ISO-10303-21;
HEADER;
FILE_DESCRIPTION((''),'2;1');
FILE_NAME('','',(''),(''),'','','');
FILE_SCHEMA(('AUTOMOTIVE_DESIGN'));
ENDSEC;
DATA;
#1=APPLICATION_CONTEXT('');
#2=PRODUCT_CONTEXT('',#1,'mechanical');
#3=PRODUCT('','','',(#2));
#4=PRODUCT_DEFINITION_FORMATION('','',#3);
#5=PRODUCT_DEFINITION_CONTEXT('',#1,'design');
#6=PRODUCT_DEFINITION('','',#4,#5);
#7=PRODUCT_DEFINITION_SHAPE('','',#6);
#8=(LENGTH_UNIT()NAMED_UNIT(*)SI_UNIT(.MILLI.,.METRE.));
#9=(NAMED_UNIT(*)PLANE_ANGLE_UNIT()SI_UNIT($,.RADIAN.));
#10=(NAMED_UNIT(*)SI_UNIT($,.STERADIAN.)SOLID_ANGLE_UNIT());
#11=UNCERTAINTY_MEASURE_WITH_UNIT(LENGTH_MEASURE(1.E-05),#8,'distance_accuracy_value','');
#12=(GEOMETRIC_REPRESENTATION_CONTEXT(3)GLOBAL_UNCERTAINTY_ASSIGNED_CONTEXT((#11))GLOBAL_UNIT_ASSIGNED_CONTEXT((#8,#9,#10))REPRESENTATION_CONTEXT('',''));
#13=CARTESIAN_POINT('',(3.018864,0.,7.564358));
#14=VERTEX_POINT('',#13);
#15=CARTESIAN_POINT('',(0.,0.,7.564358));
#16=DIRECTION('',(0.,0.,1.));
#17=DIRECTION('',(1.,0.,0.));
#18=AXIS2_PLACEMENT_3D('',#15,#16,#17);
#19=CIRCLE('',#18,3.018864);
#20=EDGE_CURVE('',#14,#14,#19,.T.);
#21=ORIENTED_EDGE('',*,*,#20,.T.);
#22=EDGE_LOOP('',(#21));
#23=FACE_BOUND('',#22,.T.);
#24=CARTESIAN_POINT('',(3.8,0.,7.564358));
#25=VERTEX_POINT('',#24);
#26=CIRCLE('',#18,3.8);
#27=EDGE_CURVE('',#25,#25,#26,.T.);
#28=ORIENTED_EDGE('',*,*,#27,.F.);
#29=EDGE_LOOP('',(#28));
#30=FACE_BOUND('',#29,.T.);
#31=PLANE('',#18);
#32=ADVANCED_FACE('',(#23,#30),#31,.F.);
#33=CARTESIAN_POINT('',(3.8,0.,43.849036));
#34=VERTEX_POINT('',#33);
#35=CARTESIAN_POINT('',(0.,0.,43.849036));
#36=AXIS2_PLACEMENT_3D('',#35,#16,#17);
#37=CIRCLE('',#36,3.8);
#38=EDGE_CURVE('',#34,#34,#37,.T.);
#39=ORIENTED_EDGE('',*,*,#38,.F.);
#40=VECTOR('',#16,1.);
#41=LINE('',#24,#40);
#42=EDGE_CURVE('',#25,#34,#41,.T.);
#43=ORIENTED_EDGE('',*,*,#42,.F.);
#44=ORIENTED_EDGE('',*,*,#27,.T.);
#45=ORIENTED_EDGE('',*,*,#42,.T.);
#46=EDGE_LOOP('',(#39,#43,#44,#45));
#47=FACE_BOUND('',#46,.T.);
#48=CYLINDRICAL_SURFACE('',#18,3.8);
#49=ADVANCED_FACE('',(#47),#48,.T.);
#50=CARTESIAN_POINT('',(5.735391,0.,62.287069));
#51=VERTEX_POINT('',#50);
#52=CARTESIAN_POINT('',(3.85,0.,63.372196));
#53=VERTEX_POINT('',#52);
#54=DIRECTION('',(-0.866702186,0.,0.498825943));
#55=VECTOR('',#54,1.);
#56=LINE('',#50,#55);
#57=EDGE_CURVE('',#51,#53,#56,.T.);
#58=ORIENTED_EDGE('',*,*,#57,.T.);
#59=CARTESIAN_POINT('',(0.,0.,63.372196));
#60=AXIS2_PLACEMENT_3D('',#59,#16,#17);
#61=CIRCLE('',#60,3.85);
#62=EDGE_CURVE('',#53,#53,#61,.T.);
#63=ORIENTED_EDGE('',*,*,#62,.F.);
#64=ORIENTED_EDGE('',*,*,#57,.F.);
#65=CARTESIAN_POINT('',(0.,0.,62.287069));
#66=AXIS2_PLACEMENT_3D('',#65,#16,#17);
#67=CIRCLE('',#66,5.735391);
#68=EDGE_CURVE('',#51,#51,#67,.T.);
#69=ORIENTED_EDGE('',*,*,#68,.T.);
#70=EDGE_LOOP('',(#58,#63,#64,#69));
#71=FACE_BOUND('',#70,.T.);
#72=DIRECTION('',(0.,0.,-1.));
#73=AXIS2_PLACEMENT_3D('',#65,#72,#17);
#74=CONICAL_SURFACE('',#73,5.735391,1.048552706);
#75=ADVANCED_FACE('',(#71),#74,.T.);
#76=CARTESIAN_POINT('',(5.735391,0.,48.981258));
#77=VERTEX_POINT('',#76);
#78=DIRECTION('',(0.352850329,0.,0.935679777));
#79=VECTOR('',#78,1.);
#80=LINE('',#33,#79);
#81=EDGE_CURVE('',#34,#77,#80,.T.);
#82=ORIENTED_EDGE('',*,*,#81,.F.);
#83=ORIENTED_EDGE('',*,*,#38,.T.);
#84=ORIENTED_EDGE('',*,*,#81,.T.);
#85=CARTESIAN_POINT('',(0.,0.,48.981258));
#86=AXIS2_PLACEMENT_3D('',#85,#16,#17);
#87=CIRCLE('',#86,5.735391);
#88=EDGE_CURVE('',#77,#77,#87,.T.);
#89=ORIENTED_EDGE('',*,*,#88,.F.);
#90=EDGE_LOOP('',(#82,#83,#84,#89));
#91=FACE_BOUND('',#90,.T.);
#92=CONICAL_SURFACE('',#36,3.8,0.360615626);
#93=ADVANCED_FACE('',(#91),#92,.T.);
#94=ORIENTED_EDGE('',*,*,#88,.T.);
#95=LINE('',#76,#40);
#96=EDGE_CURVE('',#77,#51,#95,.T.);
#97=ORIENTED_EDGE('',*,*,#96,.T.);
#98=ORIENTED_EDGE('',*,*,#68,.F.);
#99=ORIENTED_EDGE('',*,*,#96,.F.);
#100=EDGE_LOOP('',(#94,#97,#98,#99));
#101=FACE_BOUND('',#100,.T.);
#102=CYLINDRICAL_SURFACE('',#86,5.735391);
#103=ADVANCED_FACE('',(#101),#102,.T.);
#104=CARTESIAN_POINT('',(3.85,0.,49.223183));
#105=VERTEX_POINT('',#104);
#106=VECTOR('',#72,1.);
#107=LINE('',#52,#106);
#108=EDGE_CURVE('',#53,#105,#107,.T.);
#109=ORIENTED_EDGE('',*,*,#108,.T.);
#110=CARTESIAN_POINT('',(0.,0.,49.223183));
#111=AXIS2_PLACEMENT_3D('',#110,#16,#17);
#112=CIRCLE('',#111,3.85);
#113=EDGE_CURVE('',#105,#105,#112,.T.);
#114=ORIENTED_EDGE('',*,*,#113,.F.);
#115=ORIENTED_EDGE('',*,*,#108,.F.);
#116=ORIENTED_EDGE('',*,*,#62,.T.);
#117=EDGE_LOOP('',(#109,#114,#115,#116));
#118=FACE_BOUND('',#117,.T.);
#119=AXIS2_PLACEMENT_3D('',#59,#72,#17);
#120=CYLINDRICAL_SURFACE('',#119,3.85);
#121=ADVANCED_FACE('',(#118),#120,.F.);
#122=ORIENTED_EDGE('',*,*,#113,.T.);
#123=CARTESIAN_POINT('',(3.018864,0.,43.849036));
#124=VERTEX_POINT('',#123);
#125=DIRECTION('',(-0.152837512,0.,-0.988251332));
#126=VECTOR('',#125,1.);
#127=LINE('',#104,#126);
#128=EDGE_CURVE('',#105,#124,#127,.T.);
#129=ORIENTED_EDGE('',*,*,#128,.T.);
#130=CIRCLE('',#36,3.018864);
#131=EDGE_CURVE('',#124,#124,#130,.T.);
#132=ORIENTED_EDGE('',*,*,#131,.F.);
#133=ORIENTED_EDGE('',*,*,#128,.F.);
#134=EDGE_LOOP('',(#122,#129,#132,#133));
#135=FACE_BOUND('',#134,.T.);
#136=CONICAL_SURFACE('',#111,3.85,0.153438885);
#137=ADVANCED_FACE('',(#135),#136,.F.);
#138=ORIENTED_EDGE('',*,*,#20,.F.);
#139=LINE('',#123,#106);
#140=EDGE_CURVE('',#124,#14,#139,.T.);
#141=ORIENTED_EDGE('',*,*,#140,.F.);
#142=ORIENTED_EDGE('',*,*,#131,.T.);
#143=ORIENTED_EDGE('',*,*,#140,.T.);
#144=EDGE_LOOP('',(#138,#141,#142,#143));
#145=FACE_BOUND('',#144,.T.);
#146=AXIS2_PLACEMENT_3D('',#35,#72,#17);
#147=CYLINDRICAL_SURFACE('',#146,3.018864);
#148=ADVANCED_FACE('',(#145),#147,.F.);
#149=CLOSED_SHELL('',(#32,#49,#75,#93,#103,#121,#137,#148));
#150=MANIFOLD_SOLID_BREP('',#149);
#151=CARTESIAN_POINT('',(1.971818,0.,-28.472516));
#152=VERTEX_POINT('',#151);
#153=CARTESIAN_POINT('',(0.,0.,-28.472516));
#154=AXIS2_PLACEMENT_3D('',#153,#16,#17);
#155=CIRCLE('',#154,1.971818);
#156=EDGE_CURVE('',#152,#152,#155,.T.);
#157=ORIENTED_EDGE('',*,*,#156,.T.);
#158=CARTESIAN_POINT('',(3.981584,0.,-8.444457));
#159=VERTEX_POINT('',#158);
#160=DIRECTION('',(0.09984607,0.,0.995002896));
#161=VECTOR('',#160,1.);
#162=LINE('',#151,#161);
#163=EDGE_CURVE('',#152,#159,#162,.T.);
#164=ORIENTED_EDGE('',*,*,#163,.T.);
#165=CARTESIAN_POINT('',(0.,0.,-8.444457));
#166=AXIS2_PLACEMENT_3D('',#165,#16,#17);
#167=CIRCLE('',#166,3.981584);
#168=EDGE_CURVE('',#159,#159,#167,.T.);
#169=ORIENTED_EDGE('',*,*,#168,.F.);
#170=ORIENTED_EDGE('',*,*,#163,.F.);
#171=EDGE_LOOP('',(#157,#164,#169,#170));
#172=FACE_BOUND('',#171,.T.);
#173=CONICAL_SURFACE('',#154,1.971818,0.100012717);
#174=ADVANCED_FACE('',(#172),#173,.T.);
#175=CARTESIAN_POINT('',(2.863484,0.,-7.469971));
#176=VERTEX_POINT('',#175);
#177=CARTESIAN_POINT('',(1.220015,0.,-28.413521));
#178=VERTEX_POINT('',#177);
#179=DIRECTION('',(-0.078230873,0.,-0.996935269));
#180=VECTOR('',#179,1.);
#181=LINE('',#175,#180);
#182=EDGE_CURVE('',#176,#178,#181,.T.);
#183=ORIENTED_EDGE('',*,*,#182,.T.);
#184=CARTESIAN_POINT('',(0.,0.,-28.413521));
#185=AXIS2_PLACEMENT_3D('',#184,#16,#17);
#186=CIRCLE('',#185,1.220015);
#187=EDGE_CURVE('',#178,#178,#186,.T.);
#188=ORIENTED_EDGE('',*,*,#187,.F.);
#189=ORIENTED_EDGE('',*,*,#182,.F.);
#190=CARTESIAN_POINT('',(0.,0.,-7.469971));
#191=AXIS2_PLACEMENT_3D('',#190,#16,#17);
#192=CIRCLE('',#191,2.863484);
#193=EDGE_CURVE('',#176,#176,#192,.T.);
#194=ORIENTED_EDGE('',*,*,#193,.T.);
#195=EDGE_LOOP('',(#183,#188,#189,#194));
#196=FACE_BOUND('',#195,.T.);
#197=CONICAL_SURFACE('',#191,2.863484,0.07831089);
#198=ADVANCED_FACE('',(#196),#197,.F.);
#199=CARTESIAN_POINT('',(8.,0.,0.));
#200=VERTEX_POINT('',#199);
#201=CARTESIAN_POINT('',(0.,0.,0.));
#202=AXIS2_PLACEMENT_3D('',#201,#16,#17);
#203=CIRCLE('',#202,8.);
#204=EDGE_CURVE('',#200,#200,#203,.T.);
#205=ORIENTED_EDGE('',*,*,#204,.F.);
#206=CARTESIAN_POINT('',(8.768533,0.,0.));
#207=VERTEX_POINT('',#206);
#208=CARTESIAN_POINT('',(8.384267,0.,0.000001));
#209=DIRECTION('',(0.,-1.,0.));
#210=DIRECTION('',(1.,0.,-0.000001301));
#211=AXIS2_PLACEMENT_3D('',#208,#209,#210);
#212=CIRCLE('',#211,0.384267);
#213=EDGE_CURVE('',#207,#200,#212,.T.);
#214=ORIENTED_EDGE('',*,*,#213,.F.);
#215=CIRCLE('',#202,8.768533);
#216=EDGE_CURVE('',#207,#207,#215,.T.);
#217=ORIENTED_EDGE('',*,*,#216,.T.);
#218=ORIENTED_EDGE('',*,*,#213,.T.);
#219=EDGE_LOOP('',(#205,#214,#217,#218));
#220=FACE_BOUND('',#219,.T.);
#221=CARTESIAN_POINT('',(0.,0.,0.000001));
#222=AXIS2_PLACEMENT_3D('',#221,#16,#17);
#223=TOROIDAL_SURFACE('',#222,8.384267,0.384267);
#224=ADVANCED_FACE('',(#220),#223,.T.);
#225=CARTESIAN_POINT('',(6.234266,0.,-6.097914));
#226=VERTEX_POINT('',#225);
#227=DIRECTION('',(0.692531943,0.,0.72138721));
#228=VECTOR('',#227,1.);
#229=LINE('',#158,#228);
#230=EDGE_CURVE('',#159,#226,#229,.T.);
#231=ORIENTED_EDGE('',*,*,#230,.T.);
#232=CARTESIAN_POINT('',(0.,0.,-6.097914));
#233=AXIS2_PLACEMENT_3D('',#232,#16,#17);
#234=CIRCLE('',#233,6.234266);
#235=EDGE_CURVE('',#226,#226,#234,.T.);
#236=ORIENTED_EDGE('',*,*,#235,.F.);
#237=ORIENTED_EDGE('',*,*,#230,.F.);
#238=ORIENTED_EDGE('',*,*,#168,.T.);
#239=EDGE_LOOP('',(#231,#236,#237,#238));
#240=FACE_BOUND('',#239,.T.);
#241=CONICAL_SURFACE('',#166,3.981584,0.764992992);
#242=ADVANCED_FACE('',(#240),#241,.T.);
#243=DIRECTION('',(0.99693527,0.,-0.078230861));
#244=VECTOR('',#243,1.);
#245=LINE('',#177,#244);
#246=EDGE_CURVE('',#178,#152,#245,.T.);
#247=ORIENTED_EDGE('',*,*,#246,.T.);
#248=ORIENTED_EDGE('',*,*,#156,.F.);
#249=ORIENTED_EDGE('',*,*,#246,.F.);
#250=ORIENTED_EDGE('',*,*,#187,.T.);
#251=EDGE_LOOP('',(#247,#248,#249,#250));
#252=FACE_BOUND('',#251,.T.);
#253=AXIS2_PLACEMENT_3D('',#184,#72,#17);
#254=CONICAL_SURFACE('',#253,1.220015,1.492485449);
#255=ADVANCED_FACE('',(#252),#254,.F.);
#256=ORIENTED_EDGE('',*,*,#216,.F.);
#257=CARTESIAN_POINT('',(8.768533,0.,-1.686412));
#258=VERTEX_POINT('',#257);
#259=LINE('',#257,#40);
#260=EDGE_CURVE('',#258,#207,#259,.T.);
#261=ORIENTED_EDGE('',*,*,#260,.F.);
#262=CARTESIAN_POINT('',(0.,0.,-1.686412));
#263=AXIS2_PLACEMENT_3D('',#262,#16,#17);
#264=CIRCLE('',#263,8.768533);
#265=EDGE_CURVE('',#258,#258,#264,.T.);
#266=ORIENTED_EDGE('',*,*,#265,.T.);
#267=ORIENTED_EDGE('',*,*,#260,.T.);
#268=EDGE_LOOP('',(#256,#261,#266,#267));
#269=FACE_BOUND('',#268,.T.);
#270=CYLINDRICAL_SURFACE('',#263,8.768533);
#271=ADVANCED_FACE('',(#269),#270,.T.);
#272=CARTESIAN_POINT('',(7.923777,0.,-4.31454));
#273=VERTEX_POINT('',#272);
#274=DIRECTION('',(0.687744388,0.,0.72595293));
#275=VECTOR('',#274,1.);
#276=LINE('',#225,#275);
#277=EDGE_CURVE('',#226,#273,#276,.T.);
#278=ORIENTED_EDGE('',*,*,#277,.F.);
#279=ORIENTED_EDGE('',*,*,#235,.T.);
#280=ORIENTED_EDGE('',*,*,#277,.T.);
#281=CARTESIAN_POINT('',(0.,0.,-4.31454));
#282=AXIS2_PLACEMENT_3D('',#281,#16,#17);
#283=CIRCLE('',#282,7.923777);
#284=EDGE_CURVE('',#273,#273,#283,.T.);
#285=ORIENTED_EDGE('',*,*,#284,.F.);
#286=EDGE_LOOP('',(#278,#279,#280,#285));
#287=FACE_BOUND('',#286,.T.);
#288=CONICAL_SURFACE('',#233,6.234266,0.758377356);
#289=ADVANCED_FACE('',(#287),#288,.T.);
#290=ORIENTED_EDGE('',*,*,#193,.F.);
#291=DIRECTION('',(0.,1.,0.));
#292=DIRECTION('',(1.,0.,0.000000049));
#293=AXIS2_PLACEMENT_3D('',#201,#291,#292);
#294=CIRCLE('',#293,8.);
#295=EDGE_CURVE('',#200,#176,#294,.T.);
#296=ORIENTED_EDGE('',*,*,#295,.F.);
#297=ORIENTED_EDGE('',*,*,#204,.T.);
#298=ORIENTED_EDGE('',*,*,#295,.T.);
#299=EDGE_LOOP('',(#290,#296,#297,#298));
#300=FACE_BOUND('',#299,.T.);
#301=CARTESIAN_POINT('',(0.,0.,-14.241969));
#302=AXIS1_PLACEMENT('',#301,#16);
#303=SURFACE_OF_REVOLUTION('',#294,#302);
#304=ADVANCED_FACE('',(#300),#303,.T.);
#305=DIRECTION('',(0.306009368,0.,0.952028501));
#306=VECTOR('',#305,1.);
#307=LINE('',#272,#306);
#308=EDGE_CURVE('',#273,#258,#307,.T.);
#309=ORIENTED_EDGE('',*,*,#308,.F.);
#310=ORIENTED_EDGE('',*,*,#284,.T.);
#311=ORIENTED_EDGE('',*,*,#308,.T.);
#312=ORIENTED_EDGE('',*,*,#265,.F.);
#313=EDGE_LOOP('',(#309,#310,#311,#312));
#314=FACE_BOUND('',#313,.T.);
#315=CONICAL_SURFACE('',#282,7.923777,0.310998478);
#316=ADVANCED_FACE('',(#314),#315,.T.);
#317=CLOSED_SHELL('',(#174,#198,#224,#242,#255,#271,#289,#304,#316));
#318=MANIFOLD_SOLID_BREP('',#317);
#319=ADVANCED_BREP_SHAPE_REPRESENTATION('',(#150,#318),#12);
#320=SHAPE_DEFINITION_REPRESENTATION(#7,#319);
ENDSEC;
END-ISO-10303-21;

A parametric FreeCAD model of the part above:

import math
import FreeCAD as App
import Part
import Sketcher


def add_polygon(sketch, points):
    """Adds a closed chain of lines whose ends are joined by coincident constraints."""
    first, n = sketch.GeometryCount, len(points)
    for a, b in zip(points, points[1:] + points[:1]):
        sketch.addGeometry(Part.LineSegment(App.Vector(*a, 0), App.Vector(*b, 0)), False)
    for i in range(n):
        sketch.addConstraint(Sketcher.Constraint("Coincident", first + i, 2, first + (i + 1) % n, 1))

doc = App.newDocument("Part")
params = doc.addObject("Spreadsheet::Sheet", "Params")
for row, (alias, value) in enumerate([
    ("sketch1_radius", "8 mm"),
    ("revolution_angle", "360 deg"),
    ("revolution2_angle", "360 deg"),
], start=1):
    params.set(f"A{row}", alias)
    params.set(f"B{row}", "=" + value)
    params.setAlias(f"B{row}", alias)

body = doc.addObject("PartDesign::Body", "Body")

# Sketch on XZ plane
sketch1 = body.newObject("Sketcher::SketchObject", "Sketch")
sketch1.AttachmentSupport = (doc.getObject("XZ_Plane"), [""])
sketch1.MapMode = "FlatFace"
sketch1.addGeometry([
    Part.ArcOfCircle(Part.Circle(App.Vector(8.38, 0, 0), App.Vector(0, 0, 1), 0.38), math.radians(0), math.radians(180)),  # 0
    Part.ArcOfCircle(Part.Circle(App.Vector(0, 0, 0), App.Vector(0, 0, 1), 8), math.radians(-69), math.radians(0)),  # 1
    Part.LineSegment(App.Vector(2.86, -7.47, 0), App.Vector(1.22, -28.41, 0)),  # 2
    Part.LineSegment(App.Vector(1.22, -28.41, 0), App.Vector(1.97, -28.47, 0)),  # 3
    Part.LineSegment(App.Vector(1.97, -28.47, 0), App.Vector(3.98, -8.44, 0)),  # 4
    Part.LineSegment(App.Vector(3.98, -8.44, 0), App.Vector(6.23, -6.1, 0)),  # 5
    Part.LineSegment(App.Vector(6.23, -6.1, 0), App.Vector(7.92, -4.31, 0)),  # 6
    Part.LineSegment(App.Vector(7.92, -4.31, 0), App.Vector(8.77, -1.69, 0)),  # 7
    Part.LineSegment(App.Vector(8.77, -1.69, 0), App.Vector(8.77, 0, 0)),  # 8
], False)
sketch1.addConstraint([
    Sketcher.Constraint("Tangent", 0, 2, 1, 2),
    Sketcher.Constraint("Coincident", 1, 1, 2, 1),
    Sketcher.Constraint("Coincident", 2, 2, 3, 1),
    Sketcher.Constraint("Coincident", 3, 2, 4, 1),
    Sketcher.Constraint("Coincident", 4, 2, 5, 1),
    Sketcher.Constraint("Coincident", 5, 2, 6, 1),
    Sketcher.Constraint("Coincident", 6, 2, 7, 1),
    Sketcher.Constraint("Coincident", 7, 2, 8, 1),
    Sketcher.Constraint("Tangent", 8, 2, 0, 1),
    Sketcher.Constraint("Vertical", 8),
    Sketcher.Constraint("Coincident", 1, 3, -1, 1),
    Sketcher.Constraint("PointOnObject", 0, 3, -1),
    Sketcher.Constraint("Perpendicular", 2, 3),
    Sketcher.Constraint("Radius", 1, 8.0),
    Sketcher.Constraint("DistanceX", 5, 2, 0, 3, 2.150001),
    Sketcher.Constraint("Radius", 0, 0.384267),
    Sketcher.Constraint("DistanceX", 1, 1, 4, 2, 1.1181),
    Sketcher.Constraint("Distance", 5, 3.25282),
    Sketcher.Constraint("DistanceY", 8, 1, 8, 2, 1.686412),
    Sketcher.Constraint("DistanceY", 1, 1, -1, 1, 7.469971),
    Sketcher.Constraint("DistanceY", 2, 2, -1, 1, 28.413521),
    Sketcher.Constraint("DistanceX", -1, 1, 3, 2, 1.971818),
    Sketcher.Constraint("DistanceY", 6, 2, -1, 1, 4.31454),
    Sketcher.Constraint("DistanceX", 2, 2, 1, 1, 1.643469),
    Sketcher.Constraint("DistanceY", 3, 2, 4, 2, 20.028059),
    Sketcher.Constraint("DistanceX", 5, 2, 6, 2, 1.689511),
])
sketch1.setExpression("Constraints[13]", "Params.sketch1_radius")
revolution = body.newObject("PartDesign::Revolution", "Revolution")
revolution.Profile = sketch1
revolution.ReferenceAxis = (sketch1, ["V_Axis"])
revolution.setExpression("Angle", "Params.revolution_angle")
body2 = doc.addObject("PartDesign::Body", "Body001")

# Sketch on XZ plane
sketch2 = body2.newObject("Sketcher::SketchObject", "Sketch001")
sketch2.AttachmentSupport = (doc.getObject("XZ_Plane001"), [""])
sketch2.MapMode = "FlatFace"
add_polygon(sketch2, [(5.7, 62.3), (3.9, 63.4), (3.9, 49.2), (3, 43.8), (3, 7.6), (3.8, 7.6), (3.8, 43.8), (5.7, 49)])  # lines 0-7
sketch2.addConstraint([
    Sketcher.Constraint("Vertical", 1),
    Sketcher.Constraint("Vertical", 3),
    Sketcher.Constraint("Horizontal", 4),
    Sketcher.Constraint("Vertical", 5),
    Sketcher.Constraint("Vertical", 7),
    Sketcher.Constraint("Horizontal", 2, 2, 5, 2),
    Sketcher.Constraint("DistanceX", -1, 1, 4, 2, 3.8),
    Sketcher.Constraint("DistanceX", -1, 1, 0, 2, 3.85),
    Sketcher.Constraint("DistanceY", 7, 1, 7, 2, 13.305811),
    Sketcher.Constraint("DistanceY", 4, 2, 6, 2, 41.4169),
    Sketcher.Constraint("Distance", 0, 2.175362),
    Sketcher.Constraint("Distance", 6, 5.48502),
    Sketcher.Constraint("DistanceX", 4, 1, 4, 2, 0.781136),
    Sketcher.Constraint("DistanceY", 1, 2, 1, 1, 14.149013),
    Sketcher.Constraint("DistanceY", 3, 2, 3, 1, 36.284678),
    Sketcher.Constraint("DistanceY", -1, 1, 3, 2, 7.564358),
])
revolution2 = body2.newObject("PartDesign::Revolution", "Revolution001")
revolution2.Profile = sketch2
revolution2.ReferenceAxis = (sketch2, ["V_Axis"])
revolution2.setExpression("Angle", "Params.revolution2_angle")

doc.recompute()
